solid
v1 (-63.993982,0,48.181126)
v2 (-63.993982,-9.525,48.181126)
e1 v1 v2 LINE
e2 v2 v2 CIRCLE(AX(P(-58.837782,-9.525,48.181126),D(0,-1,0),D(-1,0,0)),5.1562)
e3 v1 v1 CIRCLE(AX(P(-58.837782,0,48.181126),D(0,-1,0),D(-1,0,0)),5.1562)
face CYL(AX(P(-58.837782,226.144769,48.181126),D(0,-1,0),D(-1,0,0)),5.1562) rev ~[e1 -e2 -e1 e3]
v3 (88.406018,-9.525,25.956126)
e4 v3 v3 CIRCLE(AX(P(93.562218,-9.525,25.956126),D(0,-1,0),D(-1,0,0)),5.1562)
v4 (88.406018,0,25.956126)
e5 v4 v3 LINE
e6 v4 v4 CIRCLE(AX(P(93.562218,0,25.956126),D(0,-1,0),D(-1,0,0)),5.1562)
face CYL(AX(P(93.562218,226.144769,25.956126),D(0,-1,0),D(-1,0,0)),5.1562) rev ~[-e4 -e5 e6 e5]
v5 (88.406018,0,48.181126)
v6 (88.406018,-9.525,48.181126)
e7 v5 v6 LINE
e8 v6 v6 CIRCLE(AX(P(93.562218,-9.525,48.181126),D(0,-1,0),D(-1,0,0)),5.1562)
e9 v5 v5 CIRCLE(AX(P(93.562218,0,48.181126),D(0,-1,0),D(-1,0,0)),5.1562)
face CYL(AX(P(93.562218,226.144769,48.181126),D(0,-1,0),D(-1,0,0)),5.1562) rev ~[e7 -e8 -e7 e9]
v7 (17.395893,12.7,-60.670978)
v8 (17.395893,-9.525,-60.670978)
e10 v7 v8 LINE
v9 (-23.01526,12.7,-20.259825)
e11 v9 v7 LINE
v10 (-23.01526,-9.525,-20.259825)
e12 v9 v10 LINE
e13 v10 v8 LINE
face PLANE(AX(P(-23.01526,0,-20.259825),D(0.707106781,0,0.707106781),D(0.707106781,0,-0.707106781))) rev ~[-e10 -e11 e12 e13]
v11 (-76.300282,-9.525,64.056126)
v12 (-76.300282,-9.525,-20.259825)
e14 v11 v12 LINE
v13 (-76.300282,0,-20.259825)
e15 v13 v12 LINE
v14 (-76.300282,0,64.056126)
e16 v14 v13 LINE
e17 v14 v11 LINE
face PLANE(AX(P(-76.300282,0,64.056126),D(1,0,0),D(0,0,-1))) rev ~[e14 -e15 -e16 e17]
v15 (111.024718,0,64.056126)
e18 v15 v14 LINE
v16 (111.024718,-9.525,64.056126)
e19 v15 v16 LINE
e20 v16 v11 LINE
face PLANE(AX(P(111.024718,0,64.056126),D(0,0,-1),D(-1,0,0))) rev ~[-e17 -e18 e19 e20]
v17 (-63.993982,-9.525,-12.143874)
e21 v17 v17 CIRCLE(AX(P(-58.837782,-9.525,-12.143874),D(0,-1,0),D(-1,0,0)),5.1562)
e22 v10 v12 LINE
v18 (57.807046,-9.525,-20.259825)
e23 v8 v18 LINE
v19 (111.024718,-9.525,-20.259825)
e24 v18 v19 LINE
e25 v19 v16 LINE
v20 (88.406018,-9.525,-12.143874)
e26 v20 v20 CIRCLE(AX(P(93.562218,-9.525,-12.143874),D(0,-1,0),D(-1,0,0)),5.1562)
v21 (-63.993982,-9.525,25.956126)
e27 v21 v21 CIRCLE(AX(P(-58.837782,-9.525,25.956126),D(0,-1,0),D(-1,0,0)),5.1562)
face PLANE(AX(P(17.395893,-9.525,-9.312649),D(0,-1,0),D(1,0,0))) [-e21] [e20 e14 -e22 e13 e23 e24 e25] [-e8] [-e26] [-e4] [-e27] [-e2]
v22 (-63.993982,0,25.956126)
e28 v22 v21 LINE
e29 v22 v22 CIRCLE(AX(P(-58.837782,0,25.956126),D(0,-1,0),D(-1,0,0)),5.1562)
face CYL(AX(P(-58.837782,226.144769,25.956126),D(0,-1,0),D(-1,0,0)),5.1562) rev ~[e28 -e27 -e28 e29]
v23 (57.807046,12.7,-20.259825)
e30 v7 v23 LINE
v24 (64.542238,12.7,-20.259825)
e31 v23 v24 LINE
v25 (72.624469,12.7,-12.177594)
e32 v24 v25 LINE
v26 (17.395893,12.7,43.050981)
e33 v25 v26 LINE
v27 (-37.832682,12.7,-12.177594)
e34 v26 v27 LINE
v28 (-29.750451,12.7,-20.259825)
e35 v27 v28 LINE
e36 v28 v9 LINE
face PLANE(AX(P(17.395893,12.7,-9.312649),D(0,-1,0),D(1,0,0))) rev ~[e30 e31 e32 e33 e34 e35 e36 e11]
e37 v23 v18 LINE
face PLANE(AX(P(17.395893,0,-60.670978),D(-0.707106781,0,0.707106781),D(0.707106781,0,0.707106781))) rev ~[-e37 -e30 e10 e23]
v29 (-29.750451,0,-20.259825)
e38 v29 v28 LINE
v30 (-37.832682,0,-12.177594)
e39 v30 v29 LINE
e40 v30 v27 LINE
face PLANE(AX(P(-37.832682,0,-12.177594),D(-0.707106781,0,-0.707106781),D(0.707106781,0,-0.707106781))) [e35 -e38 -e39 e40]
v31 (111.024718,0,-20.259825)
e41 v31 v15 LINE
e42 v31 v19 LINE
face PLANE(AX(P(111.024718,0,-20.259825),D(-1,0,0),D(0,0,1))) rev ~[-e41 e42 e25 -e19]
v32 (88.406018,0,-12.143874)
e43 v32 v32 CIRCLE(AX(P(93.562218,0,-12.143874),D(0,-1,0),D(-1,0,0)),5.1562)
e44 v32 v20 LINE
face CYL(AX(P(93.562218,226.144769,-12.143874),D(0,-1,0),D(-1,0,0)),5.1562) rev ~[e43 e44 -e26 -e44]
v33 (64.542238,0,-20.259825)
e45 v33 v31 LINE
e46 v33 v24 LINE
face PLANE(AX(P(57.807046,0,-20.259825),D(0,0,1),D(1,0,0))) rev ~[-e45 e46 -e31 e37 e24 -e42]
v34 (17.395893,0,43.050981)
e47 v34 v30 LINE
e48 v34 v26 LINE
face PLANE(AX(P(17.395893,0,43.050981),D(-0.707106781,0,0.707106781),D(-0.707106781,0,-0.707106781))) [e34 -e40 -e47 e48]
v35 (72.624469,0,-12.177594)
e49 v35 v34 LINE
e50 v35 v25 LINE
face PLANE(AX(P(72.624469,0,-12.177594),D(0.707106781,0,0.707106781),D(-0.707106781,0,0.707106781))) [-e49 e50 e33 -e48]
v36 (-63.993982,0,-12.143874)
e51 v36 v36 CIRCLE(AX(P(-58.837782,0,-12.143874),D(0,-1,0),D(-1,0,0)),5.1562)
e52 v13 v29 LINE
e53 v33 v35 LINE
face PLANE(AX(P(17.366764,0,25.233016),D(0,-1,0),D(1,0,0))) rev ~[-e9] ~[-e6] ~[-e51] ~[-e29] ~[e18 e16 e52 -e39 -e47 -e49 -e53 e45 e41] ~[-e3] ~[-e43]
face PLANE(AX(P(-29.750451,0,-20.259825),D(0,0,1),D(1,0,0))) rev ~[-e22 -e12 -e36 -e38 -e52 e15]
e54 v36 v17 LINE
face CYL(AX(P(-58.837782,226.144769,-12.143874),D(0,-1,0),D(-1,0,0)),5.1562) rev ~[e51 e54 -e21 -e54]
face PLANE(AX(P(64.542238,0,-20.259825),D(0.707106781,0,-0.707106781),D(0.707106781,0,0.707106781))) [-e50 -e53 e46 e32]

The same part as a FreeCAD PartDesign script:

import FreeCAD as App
import Part
import Sketcher
from FreeCAD import Vector
Q = App.Units.Quantity


def add_polygon(sketch, points):
    """Adds a closed chain of lines whose ends are joined by coincident constraints."""
    first, n = sketch.GeometryCount, len(points)
    for a, b in zip(points, points[1:] + points[:1]):
        sketch.addGeometry(Part.LineSegment(App.Vector(*a, 0), App.Vector(*b, 0)), False)
    for i in range(n):
        sketch.addConstraint(Sketcher.Constraint("Coincident", first + i, 2, first + (i + 1) % n, 1))

doc = App.newDocument("Part")
body = doc.addObject("PartDesign::Body", "Body")
body.AllowCompound = True

sketch1 = body.newObject("Sketcher::SketchObject", "Sketch")
sketch1.AttachmentSupport = (doc.getObject("XZ_Plane"), [""])
sketch1.MapMode = "FlatFace"
add_polygon(sketch1, [(-38, -12), (-30, -20), (-23, -20), (17, -61), (58, -20), (65, -20), (73, -12), (17, 43)])
sketch1.addConstraint([
    Sketcher.Constraint("Horizontal", 1),
    Sketcher.Constraint("Horizontal", 4),
    Sketcher.Constraint("Parallel", 0, 2),
    Sketcher.Constraint("Perpendicular", 2, 3),
    Sketcher.Constraint("Parallel", 3, 5),
    Sketcher.Constraint("Perpendicular", 5, 6),
    Sketcher.Constraint("Perpendicular", 6, 7),
    Sketcher.Constraint("Horizontal", 1, 2, 3, 2),
    Sketcher.Constraint("Horizontal", 5, 2, 7, 2),
    Sketcher.Constraint("Vertical", 2, 2, 6, 2),
    Sketcher.Constraint("Equal", 1, 4),
    Sketcher.Constraint("Distance", 0, Q("0.45 in")),
    Sketcher.Constraint("Distance", 2, Q("2.25 in")),
    Sketcher.Constraint("Distance", 6, Q("3.075 in")),
    Sketcher.Constraint("DistanceX", 0, 2, -1, 1, Q("29.750451 mm")),
    Sketcher.Constraint("DistanceY", -1, 1, 6, 2, Q("43.050981 mm")),
])
pad1 = body.newObject("PartDesign::Pad", "Pad")
pad1.Profile = sketch1
pad1.Length = Q("0.5 in")
pad1.Reversed = True

sketch2 = body.newObject("Sketcher::SketchObject", "Sketch001")
sketch2.AttachmentSupport = (doc.getObject("XZ_Plane"), [""])
sketch2.MapMode = "FlatFace"
add_polygon(sketch2, [(111, 64), (-76, 64), (-76, -20), (-30, -20), (-38, -12), (17, 43), (73, -12), (65, -20), (111, -20)])
sketch2.addConstraint([
    Sketcher.Constraint("Horizontal", 0),
    Sketcher.Constraint("Vertical", 1),
    Sketcher.Constraint("Horizontal", 2),
    Sketcher.Constraint("Horizontal", 7),
    Sketcher.Constraint("Vertical", 8),
    Sketcher.Constraint("Perpendicular", 3, 4),
    Sketcher.Constraint("Perpendicular", 4, 5),
    Sketcher.Constraint("Perpendicular", 5, 6),
    Sketcher.Constraint("Horizontal", 3, 2, 5, 2),
    Sketcher.Constraint("Horizontal", 2, 2, 6, 2),
    Sketcher.Constraint("Equal", 4, 5),
    Sketcher.Constraint("Distance", 3, Q("0.45 in")),
    Sketcher.Constraint("DistanceX", 0, 2, 0, 1, Q("7.375 in")),
    Sketcher.Constraint("Distance", 4, Q("3.075 in")),
    Sketcher.Constraint("DistanceX", 2, 1, 2, 2, Q("46.549831 mm")),
    Sketcher.Constraint("DistanceY", 1, 2, 1, 1, Q("84.315951 mm")),
    Sketcher.Constraint("DistanceX", 0, 2, -1, 1, Q("76.300282 mm")),
    Sketcher.Constraint("DistanceY", -1, 1, 4, 2, Q("43.050981 mm")),
])
pad2 = body.newObject("PartDesign::Pad", "Pad001")
pad2.Profile = sketch2
pad2.Length = Q("0.375 in")

sketch3 = body.newObject("Sketcher::SketchObject", "Sketch002")
sketch3.AttachmentSupport = (doc.getObject("XZ_Plane"), [""])
sketch3.MapMode = "FlatFace"
add_polygon(sketch3, [(-38, -12), (-30, -20), (-23, -20), (17, -61), (58, -20), (65, -20), (73, -12), (17, 43)])
sketch3.addConstraint([
    Sketcher.Constraint("Horizontal", 1),
    Sketcher.Constraint("Horizontal", 4),
    Sketcher.Constraint("Parallel", 0, 2),
    Sketcher.Constraint("Perpendicular", 2, 3),
    Sketcher.Constraint("Parallel", 3, 5),
    Sketcher.Constraint("Perpendicular", 5, 6),
    Sketcher.Constraint("Perpendicular", 6, 7),
    Sketcher.Constraint("Horizontal", 1, 2, 3, 2),
    Sketcher.Constraint("Horizontal", 5, 2, 7, 2),
    Sketcher.Constraint("Vertical", 2, 2, 6, 2),
    Sketcher.Constraint("Equal", 1, 4),
    Sketcher.Constraint("Distance", 0, Q("0.45 in")),
    Sketcher.Constraint("Distance", 2, Q("2.25 in")),
    Sketcher.Constraint("Distance", 6, Q("3.075 in")),
    Sketcher.Constraint("DistanceX", 0, 2, -1, 1, Q("29.750451 mm")),
    Sketcher.Constraint("DistanceY", -1, 1, 6, 2, Q("43.050981 mm")),
])
pad3 = body.newObject("PartDesign::Pad", "Pad002")
pad3.Profile = sketch3
pad3.Length = Q("0.375 in")

sketch4 = body.newObject("Sketcher::SketchObject", "Sketch003")
sketch4.AttachmentSupport = (doc.getObject("XZ_Plane"), [""])
sketch4.MapMode = "FlatFace"
sketch4.addGeometry([
    Part.Circle(Vector(-59, 48, 0), Vector(0, 0, 1), 5),
    Part.Circle(Vector(-59, 26, 0), Vector(0, 0, 1), 5),
    Part.Circle(Vector(-59, -12, 0), Vector(0, 0, 1), 5),
    Part.Circle(Vector(94, 48, 0), Vector(0, 0, 1), 5),
    Part.Circle(Vector(94, 26, 0), Vector(0, 0, 1), 5),
    Part.Circle(Vector(94, -12, 0), Vector(0, 0, 1), 5),
], False)
sketch4.addConstraint([
    Sketcher.Constraint("Equal", 0, 1),
    Sketcher.Constraint("Equal", 1, 2),
    Sketcher.Constraint("Equal", 2, 3),
    Sketcher.Constraint("Equal", 3, 4),
    Sketcher.Constraint("Equal", 4, 5),
    Sketcher.Constraint("Horizontal", 0, 3, 3, 3),
    Sketcher.Constraint("Horizontal", 1, 3, 4, 3),
    Sketcher.Constraint("Horizontal", 2, 3, 5, 3),
    Sketcher.Constraint("Vertical", 0, 3, 1, 3),
    Sketcher.Constraint("Vertical", 1, 3, 2, 3),
    Sketcher.Constraint("Vertical", 3, 3, 4, 3),
    Sketcher.Constraint("Vertical", 4, 3, 5, 3),
    Sketcher.Constraint("Diameter", 0, Q("0.406 in")),
    Sketcher.Constraint("DistanceX", 0, 3, 3, 3, Q("6 in")),
    Sketcher.Constraint("DistanceY", 2, 3, 1, 3, Q("1.5 in")),
    Sketcher.Constraint("DistanceY", 1, 3, 0, 3, Q("0.875 in")),
    Sketcher.Constraint("DistanceX", 0, 3, -1, 1, Q("58.837782 mm")),
    Sketcher.Constraint("DistanceY", -1, 1, 0, 3, Q("48.181126 mm")),
])
doc.recompute()
hole = body.newObject("PartDesign::Hole", "Hole")
hole.Profile = sketch4
hole.ThreadType = "None"
hole.Diameter = Q("0.406 in")
hole.DepthType = "ThroughAll"
hole.Reversed = True

doc.recompute()
